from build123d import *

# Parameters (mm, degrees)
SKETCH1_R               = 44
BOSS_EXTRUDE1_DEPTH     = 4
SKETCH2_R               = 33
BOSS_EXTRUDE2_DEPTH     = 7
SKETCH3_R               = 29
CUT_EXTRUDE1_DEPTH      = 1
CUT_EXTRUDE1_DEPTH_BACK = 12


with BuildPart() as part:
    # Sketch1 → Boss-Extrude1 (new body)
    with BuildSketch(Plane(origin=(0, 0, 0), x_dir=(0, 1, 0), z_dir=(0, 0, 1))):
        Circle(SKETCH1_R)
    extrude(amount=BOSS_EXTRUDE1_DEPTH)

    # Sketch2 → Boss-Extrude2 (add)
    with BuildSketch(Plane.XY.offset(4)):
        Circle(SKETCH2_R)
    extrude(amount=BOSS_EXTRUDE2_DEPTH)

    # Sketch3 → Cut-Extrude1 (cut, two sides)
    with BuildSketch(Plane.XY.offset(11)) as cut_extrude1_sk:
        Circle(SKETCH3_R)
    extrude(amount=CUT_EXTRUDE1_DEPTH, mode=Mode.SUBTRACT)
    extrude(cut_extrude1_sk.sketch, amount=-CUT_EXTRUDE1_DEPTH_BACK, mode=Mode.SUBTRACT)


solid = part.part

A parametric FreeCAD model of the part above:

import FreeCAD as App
import Part
import Sketcher
from FreeCAD import Vector
Q = App.Units.Quantity

doc = App.newDocument("Part")
body = doc.addObject("PartDesign::Body", "Body")

sketch1 = body.newObject("Sketcher::SketchObject", "Sketch")
sketch1.AttachmentSupport = (doc.getObject("XY_Plane"), [""])
sketch1.MapMode = "FlatFace"
sketch1.addGeometry(Part.Circle(Vector(0, 0, 0), Vector(0, 0, 1), 44), False)
sketch1.addConstraint([
    Sketcher.Constraint("Coincident", 0, 3, -1, 1),
    Sketcher.Constraint("Diameter", 0, Q("88 mm")),
])
pad1 = body.newObject("PartDesign::Pad", "Pad")
pad1.Profile = sketch1
pad1.Length = 4

sketch2 = body.newObject("Sketcher::SketchObject", "Sketch001")
sketch2.AttachmentSupport = (doc.getObject("XY_Plane"), [""])
sketch2.MapMode = "FlatFace"
sketch2.AttachmentOffset = App.Placement(Vector(0, 0, 4), App.Rotation())
sketch2.addGeometry(Part.Circle(Vector(0, 0, 0), Vector(0, 0, 1), 33), False)
sketch2.addConstraint([
    Sketcher.Constraint("Coincident", 0, 3, -1, 1),
    Sketcher.Constraint("Diameter", 0, Q("66 mm")),
])
pad2 = body.newObject("PartDesign::Pad", "Pad001")
pad2.Profile = sketch2
pad2.Length = 7

sketch3 = body.newObject("Sketcher::SketchObject", "Sketch002")
sketch3.AttachmentSupport = (doc.getObject("XY_Plane"), [""])
sketch3.MapMode = "FlatFace"
sketch3.AttachmentOffset = App.Placement(Vector(0, 0, 11), App.Rotation())
sketch3.addGeometry(Part.Circle(Vector(0, 0, 0), Vector(0, 0, 1), 29), False)
sketch3.addConstraint([
    Sketcher.Constraint("Coincident", 0, 3, -1, 1),
    Sketcher.Constraint("Diameter", 0, Q("58 mm")),
])
pocket1 = body.newObject("PartDesign::Pocket", "Pocket")
pocket1.Profile = sketch3
pocket1.Type = "ThroughAll"
pocket1.Midplane = True

doc.recompute()
